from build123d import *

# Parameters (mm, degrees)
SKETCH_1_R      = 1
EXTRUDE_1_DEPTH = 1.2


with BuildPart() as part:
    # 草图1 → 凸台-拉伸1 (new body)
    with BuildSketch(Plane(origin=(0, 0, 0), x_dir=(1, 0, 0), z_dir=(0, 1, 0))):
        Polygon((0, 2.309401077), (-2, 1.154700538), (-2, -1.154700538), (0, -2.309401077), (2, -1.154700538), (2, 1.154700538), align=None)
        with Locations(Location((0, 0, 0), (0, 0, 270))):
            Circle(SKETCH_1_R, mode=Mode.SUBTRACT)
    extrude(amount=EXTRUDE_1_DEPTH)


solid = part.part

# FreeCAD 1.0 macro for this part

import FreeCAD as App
import Part
import Sketcher
from FreeCAD import Vector
Q = App.Units.Quantity


def add_polygon(sketch, points):
    """Adds a closed chain of lines whose ends are joined by coincident constraints."""
    first, n = sketch.GeometryCount, len(points)
    for a, b in zip(points, points[1:] + points[:1]):
        sketch.addGeometry(Part.LineSegment(App.Vector(*a, 0), App.Vector(*b, 0)), False)
    for i in range(n):
        sketch.addConstraint(Sketcher.Constraint("Coincident", first + i, 2, first + (i + 1) % n, 1))

doc = App.newDocument("Part")
body = doc.addObject("PartDesign::Body", "Body")

sketch1 = body.newObject("Sketcher::SketchObject", "Sketch")
sketch1.AttachmentSupport = (doc.getObject("XZ_Plane"), [""])
sketch1.MapMode = "FlatFace"
add_polygon(sketch1, [(0, -2.3), (-2, -1.2), (-2, 1.2), (0, 2.3), (2, 1.2), (2, -1.2)])
sketch1.addGeometry(Part.Circle(Vector(0, 0, 0), Vector(0, 0, 1), 1), False)
sketch1.addConstraint(Sketcher.Constraint("Vertical", 1))
sketch1.addConstraint(Sketcher.Constraint("Vertical", 4))
sketch1.addConstraint(Sketcher.Constraint("Coincident", 6, 3, -1, 1))
sketch1.addConstraint(Sketcher.Constraint("Symmetric", 0, 2, 3, 2, -1, 1))
sketch1.addConstraint(Sketcher.Constraint("Symmetric", 2, 2, 5, 2, -1, 1))
sketch1.addConstraint(Sketcher.Constraint("PointOnObject", 2, 2, -2))
sketch1.addConstraint(Sketcher.Constraint("Parallel", 2, 5))
sketch1.addConstraint(Sketcher.Constraint("Horizontal", 1, 2, 3, 2))
sketch1.addConstraint(Sketcher.Constraint("Diameter", 6, 2.0))
sketch1.addConstraint(Sketcher.Constraint("Angle", 0, Q("150 deg")))
sketch1.addConstraint(Sketcher.Constraint("DistanceX", 0, 2, -1, 1, 2.0))
sketch1.addConstraint(Sketcher.Constraint("DistanceY", 1, 1, 1, 2, 2.309401))
pad1 = body.newObject("PartDesign::Pad", "Pad")
pad1.Profile = sketch1
pad1.Length = 1.2
pad1.Reversed = True

doc.recompute()
